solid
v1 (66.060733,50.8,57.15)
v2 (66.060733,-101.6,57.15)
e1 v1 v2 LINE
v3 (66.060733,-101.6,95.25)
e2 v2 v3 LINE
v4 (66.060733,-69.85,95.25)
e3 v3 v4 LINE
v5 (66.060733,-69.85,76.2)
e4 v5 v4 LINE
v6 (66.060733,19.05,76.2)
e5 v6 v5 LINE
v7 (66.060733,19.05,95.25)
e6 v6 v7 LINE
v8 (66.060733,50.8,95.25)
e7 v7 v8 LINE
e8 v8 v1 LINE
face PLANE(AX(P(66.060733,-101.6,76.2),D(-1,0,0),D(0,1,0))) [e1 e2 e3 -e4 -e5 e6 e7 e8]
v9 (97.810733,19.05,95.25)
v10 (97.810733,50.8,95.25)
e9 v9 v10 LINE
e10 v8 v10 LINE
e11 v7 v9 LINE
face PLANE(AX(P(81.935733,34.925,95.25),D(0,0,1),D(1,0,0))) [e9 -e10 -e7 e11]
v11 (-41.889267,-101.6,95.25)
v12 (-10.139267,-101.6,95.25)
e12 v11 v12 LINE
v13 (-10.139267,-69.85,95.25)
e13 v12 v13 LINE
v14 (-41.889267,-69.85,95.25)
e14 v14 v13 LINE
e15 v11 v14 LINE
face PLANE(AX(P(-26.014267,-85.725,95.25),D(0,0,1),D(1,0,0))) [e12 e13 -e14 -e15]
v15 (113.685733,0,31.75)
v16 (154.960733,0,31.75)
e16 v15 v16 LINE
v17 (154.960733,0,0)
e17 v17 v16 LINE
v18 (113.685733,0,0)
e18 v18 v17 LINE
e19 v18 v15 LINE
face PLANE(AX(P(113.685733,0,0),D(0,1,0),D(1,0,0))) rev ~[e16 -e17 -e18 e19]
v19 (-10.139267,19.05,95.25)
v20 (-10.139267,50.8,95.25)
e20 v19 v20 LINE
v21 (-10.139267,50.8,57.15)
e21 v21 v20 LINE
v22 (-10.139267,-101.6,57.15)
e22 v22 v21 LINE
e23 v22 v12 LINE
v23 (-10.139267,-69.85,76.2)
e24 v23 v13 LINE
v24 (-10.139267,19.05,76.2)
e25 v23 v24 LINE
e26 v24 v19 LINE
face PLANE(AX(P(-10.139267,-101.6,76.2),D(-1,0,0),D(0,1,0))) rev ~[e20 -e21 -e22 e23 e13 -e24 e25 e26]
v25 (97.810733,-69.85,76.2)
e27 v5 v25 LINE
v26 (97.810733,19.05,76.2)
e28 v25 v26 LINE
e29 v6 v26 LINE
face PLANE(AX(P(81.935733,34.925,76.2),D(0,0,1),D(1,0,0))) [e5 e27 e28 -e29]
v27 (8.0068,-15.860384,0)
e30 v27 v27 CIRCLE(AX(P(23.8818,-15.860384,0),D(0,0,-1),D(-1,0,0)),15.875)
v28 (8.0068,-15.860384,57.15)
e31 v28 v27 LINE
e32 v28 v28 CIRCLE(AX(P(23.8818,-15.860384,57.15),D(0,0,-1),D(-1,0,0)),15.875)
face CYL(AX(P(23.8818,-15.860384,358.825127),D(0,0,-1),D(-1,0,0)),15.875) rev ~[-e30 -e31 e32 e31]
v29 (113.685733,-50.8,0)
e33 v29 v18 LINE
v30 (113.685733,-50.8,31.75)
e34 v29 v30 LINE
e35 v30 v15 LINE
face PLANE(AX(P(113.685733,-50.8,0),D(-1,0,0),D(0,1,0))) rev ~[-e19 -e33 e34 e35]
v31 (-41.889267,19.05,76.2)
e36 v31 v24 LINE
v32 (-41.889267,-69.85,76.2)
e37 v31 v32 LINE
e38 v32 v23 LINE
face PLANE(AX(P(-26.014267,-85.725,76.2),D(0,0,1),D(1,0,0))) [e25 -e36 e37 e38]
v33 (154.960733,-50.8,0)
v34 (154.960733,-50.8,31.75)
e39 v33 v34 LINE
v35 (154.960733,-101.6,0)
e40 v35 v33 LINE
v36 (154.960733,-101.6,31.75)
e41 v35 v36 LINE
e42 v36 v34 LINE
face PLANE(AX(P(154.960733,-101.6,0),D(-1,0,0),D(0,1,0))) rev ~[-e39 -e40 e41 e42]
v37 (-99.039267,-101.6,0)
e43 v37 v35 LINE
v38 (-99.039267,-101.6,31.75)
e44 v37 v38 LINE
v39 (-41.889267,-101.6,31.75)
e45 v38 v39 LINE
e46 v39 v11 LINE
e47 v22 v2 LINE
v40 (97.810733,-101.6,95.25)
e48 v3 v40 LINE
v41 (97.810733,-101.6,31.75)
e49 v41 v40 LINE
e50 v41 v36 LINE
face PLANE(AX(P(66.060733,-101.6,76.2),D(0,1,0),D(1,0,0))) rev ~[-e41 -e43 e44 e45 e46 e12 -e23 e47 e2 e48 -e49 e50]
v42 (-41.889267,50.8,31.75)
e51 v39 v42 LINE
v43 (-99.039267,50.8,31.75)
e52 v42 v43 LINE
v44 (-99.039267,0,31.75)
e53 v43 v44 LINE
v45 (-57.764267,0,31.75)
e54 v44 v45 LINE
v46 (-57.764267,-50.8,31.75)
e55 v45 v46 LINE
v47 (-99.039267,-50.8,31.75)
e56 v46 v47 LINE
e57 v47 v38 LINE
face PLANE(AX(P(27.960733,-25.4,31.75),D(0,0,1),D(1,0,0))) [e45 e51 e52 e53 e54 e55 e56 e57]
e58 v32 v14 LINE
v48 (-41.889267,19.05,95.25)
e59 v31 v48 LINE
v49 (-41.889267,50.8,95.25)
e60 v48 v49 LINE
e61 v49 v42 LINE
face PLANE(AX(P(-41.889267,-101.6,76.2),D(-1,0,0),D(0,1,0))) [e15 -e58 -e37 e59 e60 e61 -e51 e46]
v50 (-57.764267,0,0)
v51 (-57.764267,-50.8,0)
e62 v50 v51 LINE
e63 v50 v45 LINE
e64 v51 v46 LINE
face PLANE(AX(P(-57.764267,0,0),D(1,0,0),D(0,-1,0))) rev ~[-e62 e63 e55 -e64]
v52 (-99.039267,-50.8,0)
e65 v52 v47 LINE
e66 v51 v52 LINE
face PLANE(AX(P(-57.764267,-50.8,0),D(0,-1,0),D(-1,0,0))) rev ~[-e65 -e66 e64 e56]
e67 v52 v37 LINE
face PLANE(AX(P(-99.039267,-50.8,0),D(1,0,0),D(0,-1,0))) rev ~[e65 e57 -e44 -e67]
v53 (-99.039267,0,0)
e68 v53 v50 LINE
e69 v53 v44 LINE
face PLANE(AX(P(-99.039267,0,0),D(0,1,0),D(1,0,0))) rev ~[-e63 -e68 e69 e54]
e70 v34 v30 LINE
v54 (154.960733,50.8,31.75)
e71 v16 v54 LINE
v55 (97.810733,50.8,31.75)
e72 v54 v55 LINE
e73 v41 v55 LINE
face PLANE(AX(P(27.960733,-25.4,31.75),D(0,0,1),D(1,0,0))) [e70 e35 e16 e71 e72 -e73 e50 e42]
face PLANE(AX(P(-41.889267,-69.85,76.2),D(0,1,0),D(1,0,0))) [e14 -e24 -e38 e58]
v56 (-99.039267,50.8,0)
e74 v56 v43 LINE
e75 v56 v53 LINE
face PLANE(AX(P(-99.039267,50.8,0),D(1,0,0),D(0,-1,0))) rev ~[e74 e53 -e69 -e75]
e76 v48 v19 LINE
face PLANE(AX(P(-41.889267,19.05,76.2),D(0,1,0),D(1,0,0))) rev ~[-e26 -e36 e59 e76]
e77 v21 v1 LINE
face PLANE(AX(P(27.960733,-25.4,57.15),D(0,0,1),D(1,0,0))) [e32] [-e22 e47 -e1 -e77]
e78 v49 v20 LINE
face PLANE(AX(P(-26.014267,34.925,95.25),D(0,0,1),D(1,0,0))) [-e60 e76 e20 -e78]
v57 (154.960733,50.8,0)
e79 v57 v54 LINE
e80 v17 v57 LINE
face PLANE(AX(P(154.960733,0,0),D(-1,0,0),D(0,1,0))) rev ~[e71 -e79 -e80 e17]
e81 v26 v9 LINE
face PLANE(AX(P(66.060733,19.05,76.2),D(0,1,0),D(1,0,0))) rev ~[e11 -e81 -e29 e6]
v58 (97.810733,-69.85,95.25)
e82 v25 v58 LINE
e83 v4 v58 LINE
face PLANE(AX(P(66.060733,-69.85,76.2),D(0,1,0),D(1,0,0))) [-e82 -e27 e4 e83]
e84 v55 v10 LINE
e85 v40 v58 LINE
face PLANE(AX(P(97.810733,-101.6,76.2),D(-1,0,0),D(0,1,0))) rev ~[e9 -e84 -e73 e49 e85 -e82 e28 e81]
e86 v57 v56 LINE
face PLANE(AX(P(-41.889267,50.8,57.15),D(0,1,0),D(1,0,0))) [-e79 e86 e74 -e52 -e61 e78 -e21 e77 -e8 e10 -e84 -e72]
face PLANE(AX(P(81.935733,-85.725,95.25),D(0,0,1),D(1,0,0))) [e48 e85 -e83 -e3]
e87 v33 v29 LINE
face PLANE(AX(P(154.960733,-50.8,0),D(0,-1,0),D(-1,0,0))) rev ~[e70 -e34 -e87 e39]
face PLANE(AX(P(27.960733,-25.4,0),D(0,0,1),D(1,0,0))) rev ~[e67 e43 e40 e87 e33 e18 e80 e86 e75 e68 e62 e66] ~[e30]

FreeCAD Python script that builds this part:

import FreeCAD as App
import Part
import Sketcher
from FreeCAD import Vector
Q = App.Units.Quantity

doc = App.newDocument("Part")
body = doc.addObject("PartDesign::Body", "Body")

# Sketch on XY plane
sketch1 = body.newObject("Sketcher::SketchObject", "Sketch")
sketch1.AttachmentSupport = (doc.getObject("XY_Plane"), [""])
sketch1.MapMode = "FlatFace"
sketch1.addGeometry(Part.LineSegment(Vector(155, 51, 0), Vector(-99, 51, 0)), False)
sketch1.addGeometry(Part.LineSegment(Vector(-99, 51, 0), Vector(-99, 0, 0)), False)
sketch1.addGeometry(Part.LineSegment(Vector(-99, 0, 0), Vector(-58, 0, 0)), False)
sketch1.addGeometry(Part.LineSegment(Vector(-58, 0, 0), Vector(-58, -51, 0)), False)
sketch1.addGeometry(Part.LineSegment(Vector(-58, -51, 0), Vector(-99, -51, 0)), False)
sketch1.addGeometry(Part.LineSegment(Vector(-99, -51, 0), Vector(-99, -102, 0)), False)
sketch1.addGeometry(Part.LineSegment(Vector(-99, -102, 0), Vector(155, -102, 0)), False)
sketch1.addGeometry(Part.LineSegment(Vector(155, -102, 0), Vector(155, -51, 0)), False)
sketch1.addGeometry(Part.LineSegment(Vector(155, -51, 0), Vector(114, -51, 0)), False)
sketch1.addGeometry(Part.LineSegment(Vector(114, -51, 0), Vector(114, 0, 0)), False)
sketch1.addGeometry(Part.LineSegment(Vector(114, 0, 0), Vector(155, 0, 0)), False)
sketch1.addGeometry(Part.LineSegment(Vector(155, 0, 0), Vector(155, 51, 0)), False)
sketch1.addConstraint(Sketcher.Constraint("Coincident", 0, 2, 1, 1))
sketch1.addConstraint(Sketcher.Constraint("Coincident", 1, 2, 2, 1))
sketch1.addConstraint(Sketcher.Constraint("Coincident", 2, 2, 3, 1))
sketch1.addConstraint(Sketcher.Constraint("Coincident", 3, 2, 4, 1))
sketch1.addConstraint(Sketcher.Constraint("Coincident", 4, 2, 5, 1))
sketch1.addConstraint(Sketcher.Constraint("Coincident", 5, 2, 6, 1))
sketch1.addConstraint(Sketcher.Constraint("Coincident", 6, 2, 7, 1))
sketch1.addConstraint(Sketcher.Constraint("Coincident", 7, 2, 8, 1))
sketch1.addConstraint(Sketcher.Constraint("Coincident", 8, 2, 9, 1))
sketch1.addConstraint(Sketcher.Constraint("Coincident", 9, 2, 10, 1))
sketch1.addConstraint(Sketcher.Constraint("Coincident", 10, 2, 11, 1))
sketch1.addConstraint(Sketcher.Constraint("Coincident", 11, 2, 0, 1))
sketch1.addConstraint(Sketcher.Constraint("Horizontal", 0))
sketch1.addConstraint(Sketcher.Constraint("Vertical", 1))
sketch1.addConstraint(Sketcher.Constraint("Horizontal", 2))
sketch1.addConstraint(Sketcher.Constraint("Vertical", 3))
sketch1.addConstraint(Sketcher.Constraint("Horizontal", 4))
sketch1.addConstraint(Sketcher.Constraint("Vertical", 5))
sketch1.addConstraint(Sketcher.Constraint("Horizontal", 6))
sketch1.addConstraint(Sketcher.Constraint("Vertical", 7))
sketch1.addConstraint(Sketcher.Constraint("Horizontal", 8))
sketch1.addConstraint(Sketcher.Constraint("Vertical", 9))
sketch1.addConstraint(Sketcher.Constraint("Horizontal", 10))
sketch1.addConstraint(Sketcher.Constraint("Vertical", 11))
sketch1.addConstraint(Sketcher.Constraint("Symmetric", 0, 2, 4, 2, -1))
sketch1.addConstraint(Sketcher.Constraint("Symmetric", 7, 2, 11, 2, -1))
sketch1.addConstraint(Sketcher.Constraint("PointOnObject", 1, 2, -1))
sketch1.addConstraint(Sketcher.Constraint("PointOnObject", 9, 2, -1))
sketch1.addConstraint(Sketcher.Constraint("Equal", 4, 8))
sketch1.addConstraint(Sketcher.Constraint("Equal", 3, 5))
sketch1.addConstraint(Sketcher.Constraint("DistanceX", 0, 2, 0, 1, Q("10 in")))
sketch1.addConstraint(Sketcher.Constraint("DistanceY", 1, 2, 1, 1, Q("2 in")))
sketch1.addConstraint(Sketcher.Constraint("DistanceX", 2, 1, 2, 2, Q("1.625 in")))
sketch1.addConstraint(Sketcher.Constraint("DistanceX", 0, 2, -1, 1, Q("99.039267 mm")))
pad1 = body.newObject("PartDesign::Pad", "Pad")
pad1.Profile = sketch1
pad1.Length = Q("1.25 in")

# Sketch on XY plane
sketch2 = body.newObject("Sketcher::SketchObject", "Sketch001")
sketch2.AttachmentSupport = (doc.getObject("XY_Plane"), [""])
sketch2.MapMode = "FlatFace"
sketch2.AttachmentOffset = App.Placement(Vector(0, 0, 1.25 * 25.4), App.Rotation())
sketch2.addGeometry(Part.LineSegment(Vector(-42, 51, 0), Vector(-42, -102, 0)), False)
sketch2.addGeometry(Part.LineSegment(Vector(-42, -102, 0), Vector(98, -102, 0)), False)
sketch2.addGeometry(Part.LineSegment(Vector(98, -102, 0), Vector(98, 51, 0)), False)
sketch2.addGeometry(Part.LineSegment(Vector(98, 51, 0), Vector(-42, 51, 0)), False)
sketch2.addConstraint(Sketcher.Constraint("Coincident", 0, 2, 1, 1))
sketch2.addConstraint(Sketcher.Constraint("Coincident", 1, 2, 2, 1))
sketch2.addConstraint(Sketcher.Constraint("Coincident", 2, 2, 3, 1))
sketch2.addConstraint(Sketcher.Constraint("Coincident", 3, 2, 0, 1))
sketch2.addConstraint(Sketcher.Constraint("Vertical", 0))
sketch2.addConstraint(Sketcher.Constraint("Horizontal", 1))
sketch2.addConstraint(Sketcher.Constraint("Vertical", 2))
sketch2.addConstraint(Sketcher.Constraint("Horizontal", 3))
sketch2.addConstraint(Sketcher.Constraint("DistanceY", 0, 2, 0, 1, Q("6 in")))
sketch2.addConstraint(Sketcher.Constraint("DistanceX", 1, 1, 1, 2, Q("5.5 in")))
sketch2.addConstraint(Sketcher.Constraint("DistanceY", 0, 2, -1, 1, Q("4 in")))
sketch2.addConstraint(Sketcher.Constraint("DistanceX", 0, 2, -1, 1, Q("41.889267 mm")))
pad2 = body.newObject("PartDesign::Pad", "Pad001")
pad2.Profile = sketch2
pad2.Length = Q("1 in")

# Sketch on XY plane
sketch3 = body.newObject("Sketcher::SketchObject", "Sketch002")
sketch3.AttachmentSupport = (doc.getObject("XY_Plane"), [""])
sketch3.MapMode = "FlatFace"
sketch3.AttachmentOffset = App.Placement(Vector(0, 0, 2.25 * 25.4), App.Rotation())
sketch3.addGeometry(Part.Circle(Vector(24, -16, 0), Vector(0, 0, 1), 16), False)
sketch3.addConstraint(Sketcher.Constraint("Diameter", 0, Q("1.25 in")))
sketch3.addConstraint(Sketcher.Constraint("DistanceX", -1, 1, 0, 3, Q("23.8818 mm")))
sketch3.addConstraint(Sketcher.Constraint("DistanceY", 0, 3, -1, 1, Q("15.860384 mm")))
doc.recompute()
hole = body.newObject("PartDesign::Hole", "Hole")
hole.Profile = sketch3
hole.ThreadType = "None"
hole.Diameter = Q("1.25 in")
hole.DepthType = "ThroughAll"

# Sketch on XY plane
sketch4 = body.newObject("Sketcher::SketchObject", "Sketch003")
sketch4.AttachmentSupport = (doc.getObject("XY_Plane"), [""])
sketch4.MapMode = "FlatFace"
sketch4.AttachmentOffset = App.Placement(Vector(0, 0, 2.25 * 25.4), App.Rotation())
sketch4.addGeometry(Part.LineSegment(Vector(-42, -102, 0), Vector(-10, -102, 0)), False)
sketch4.addGeometry(Part.LineSegment(Vector(-10, -102, 0), Vector(-10, 51, 0)), False)
sketch4.addGeometry(Part.LineSegment(Vector(-10, 51, 0), Vector(-42, 51, 0)), False)
sketch4.addGeometry(Part.LineSegment(Vector(-42, 51, 0), Vector(-42, -102, 0)), False)
sketch4.addGeometry(Part.LineSegment(Vector(66, 51, 0), Vector(66, -102, 0)), False)
sketch4.addGeometry(Part.LineSegment(Vector(66, -102, 0), Vector(98, -102, 0)), False)
sketch4.addGeometry(Part.LineSegment(Vector(98, -102, 0), Vector(98, 51, 0)), False)
sketch4.addGeometry(Part.LineSegment(Vector(98, 51, 0), Vector(66, 51, 0)), False)
sketch4.addConstraint(Sketcher.Constraint("Coincident", 0, 2, 1, 1))
sketch4.addConstraint(Sketcher.Constraint("Coincident", 1, 2, 2, 1))
sketch4.addConstraint(Sketcher.Constraint("Coincident", 2, 2, 3, 1))
sketch4.addConstraint(Sketcher.Constraint("Coincident", 3, 2, 0, 1))
sketch4.addConstraint(Sketcher.Constraint("Coincident", 4, 2, 5, 1))
sketch4.addConstraint(Sketcher.Constraint("Coincident", 5, 2, 6, 1))
sketch4.addConstraint(Sketcher.Constraint("Coincident", 6, 2, 7, 1))
sketch4.addConstraint(Sketcher.Constraint("Coincident", 7, 2, 4, 1))
sketch4.addConstraint(Sketcher.Constraint("Horizontal", 0))
sketch4.addConstraint(Sketcher.Constraint("Vertical", 1))
sketch4.addConstraint(Sketcher.Constraint("Horizontal", 2))
sketch4.addConstraint(Sketcher.Constraint("Vertical", 3))
sketch4.addConstraint(Sketcher.Constraint("Vertical", 4))
sketch4.addConstraint(Sketcher.Constraint("Horizontal", 5))
sketch4.addConstraint(Sketcher.Constraint("Vertical", 6))
sketch4.addConstraint(Sketcher.Constraint("Horizontal", 7))
sketch4.addConstraint(Sketcher.Constraint("Horizontal", 3, 2, 4, 2))
sketch4.addConstraint(Sketcher.Constraint("Horizontal", 2, 2, 6, 2))
sketch4.addConstraint(Sketcher.Constraint("Equal", 2, 5))
sketch4.addConstraint(Sketcher.Constraint("DistanceY", 1, 1, 1, 2, Q("6 in")))
sketch4.addConstraint(Sketcher.Constraint("DistanceY", 0, 2, -1, 1, Q("4 in")))
sketch4.addConstraint(Sketcher.Constraint("DistanceX", 0, 2, 4, 2, Q("3 in")))
sketch4.addConstraint(Sketcher.Constraint("DistanceX", 0, 1, 0, 2, Q("1.25 in")))
sketch4.addConstraint(Sketcher.Constraint("DistanceX", 0, 2, -1, 1, Q("10.139267 mm")))
pad3 = body.newObject("PartDesign::Pad", "Pad002")
pad3.Profile = sketch4
pad3.Length = Q("0.75 in")

# Sketch on XY plane
sketch5 = body.newObject("Sketcher::SketchObject", "Sketch004")
sketch5.AttachmentSupport = (doc.getObject("XY_Plane"), [""])
sketch5.MapMode = "FlatFace"
sketch5.AttachmentOffset = App.Placement(Vector(0, 0, 3 * 25.4), App.Rotation())
sketch5.addGeometry(Part.LineSegment(Vector(-42, -70, 0), Vector(-42, -102, 0)), False)
sketch5.addGeometry(Part.LineSegment(Vector(-42, -102, 0), Vector(-10, -102, 0)), False)
sketch5.addGeometry(Part.LineSegment(Vector(-10, -102, 0), Vector(-10, -70, 0)), False)
sketch5.addGeometry(Part.LineSegment(Vector(-10, -70, 0), Vector(-42, -70, 0)), False)
sketch5.addGeometry(Part.LineSegment(Vector(-42, 51, 0), Vector(-42, 19, 0)), False)
sketch5.addGeometry(Part.LineSegment(Vector(-42, 19, 0), Vector(-10, 19, 0)), False)
sketch5.addGeometry(Part.LineSegment(Vector(-10, 19, 0), Vector(-10, 51, 0)), False)
sketch5.addGeometry(Part.LineSegment(Vector(-10, 51, 0), Vector(-42, 51, 0)), False)
sketch5.addConstraint(Sketcher.Constraint("Coincident", 0, 2, 1, 1))
sketch5.addConstraint(Sketcher.Constraint("Coincident", 1, 2, 2, 1))
sketch5.addConstraint(Sketcher.Constraint("Coincident", 2, 2, 3, 1))
sketch5.addConstraint(Sketcher.Constraint("Coincident", 3, 2, 0, 1))
sketch5.addConstraint(Sketcher.Constraint("Coincident", 4, 2, 5, 1))
sketch5.addConstraint(Sketcher.Constraint("Coincident", 5, 2, 6, 1))
sketch5.addConstraint(Sketcher.Constraint("Coincident", 6, 2, 7, 1))
sketch5.addConstraint(Sketcher.Constraint("Coincident", 7, 2, 4, 1))
sketch5.addConstraint(Sketcher.Constraint("Vertical", 0))
sketch5.addConstraint(Sketcher.Constraint("Horizontal", 1))
sketch5.addConstraint(Sketcher.Constraint("Vertical", 2))
sketch5.addConstraint(Sketcher.Constraint("Horizontal", 3))
sketch5.addConstraint(Sketcher.Constraint("Vertical", 4))
sketch5.addConstraint(Sketcher.Constraint("Horizontal", 5))
sketch5.addConstraint(Sketcher.Constraint("Vertical", 6))
sketch5.addConstraint(Sketcher.Constraint("Horizontal", 7))
sketch5.addConstraint(Sketcher.Constraint("Vertical", 3, 2, 4, 2))
sketch5.addConstraint(Sketcher.Constraint("Vertical", 2, 2, 5, 2))
sketch5.addConstraint(Sketcher.Constraint("Equal", 7, 0))
sketch5.addConstraint(Sketcher.Constraint("Equal", 2, 4))
sketch5.addConstraint(Sketcher.Constraint("DistanceY", 0, 2, -1, 1, Q("4 in")))
sketch5.addConstraint(Sketcher.Constraint("DistanceY", -1, 1, 6, 2, Q("2 in")))
sketch5.addConstraint(Sketcher.Constraint("DistanceX", 1, 1, 1, 2, Q("1.25 in")))
sketch5.addConstraint(Sketcher.Constraint("DistanceX", 0, 2, -1, 1, Q("41.889267 mm")))
pad4 = body.newObject("PartDesign::Pad", "Pad003")
pad4.Profile = sketch5
pad4.Length = Q("0.75 in")

# Sketch on XY plane
sketch6 = body.newObject("Sketcher::SketchObject", "Sketch005")
sketch6.AttachmentSupport = (doc.getObject("XY_Plane"), [""])
sketch6.MapMode = "FlatFace"
sketch6.AttachmentOffset = App.Placement(Vector(0, 0, 3 * 25.4), App.Rotation())
sketch6.addGeometry(Part.LineSegment(Vector(66, -70, 0), Vector(66, -102, 0)), False)
sketch6.addGeometry(Part.LineSegment(Vector(66, -102, 0), Vector(98, -102, 0)), False)
sketch6.addGeometry(Part.LineSegment(Vector(98, -102, 0), Vector(98, -70, 0)), False)
sketch6.addGeometry(Part.LineSegment(Vector(98, -70, 0), Vector(66, -70, 0)), False)
sketch6.addGeometry(Part.LineSegment(Vector(66, 51, 0), Vector(66, 19, 0)), False)
sketch6.addGeometry(Part.LineSegment(Vector(66, 19, 0), Vector(98, 19, 0)), False)
sketch6.addGeometry(Part.LineSegment(Vector(98, 19, 0), Vector(98, 51, 0)), False)
sketch6.addGeometry(Part.LineSegment(Vector(98, 51, 0), Vector(66, 51, 0)), False)
sketch6.addConstraint(Sketcher.Constraint("Coincident", 0, 2, 1, 1))
sketch6.addConstraint(Sketcher.Constraint("Coincident", 1, 2, 2, 1))
sketch6.addConstraint(Sketcher.Constraint("Coincident", 2, 2, 3, 1))
sketch6.addConstraint(Sketcher.Constraint("Coincident", 3, 2, 0, 1))
sketch6.addConstraint(Sketcher.Constraint("Coincident", 4, 2, 5, 1))
sketch6.addConstraint(Sketcher.Constraint("Coincident", 5, 2, 6, 1))
sketch6.addConstraint(Sketcher.Constraint("Coincident", 6, 2, 7, 1))
sketch6.addConstraint(Sketcher.Constraint("Coincident", 7, 2, 4, 1))
sketch6.addConstraint(Sketcher.Constraint("Vertical", 0))
sketch6.addConstraint(Sketcher.Constraint("Horizontal", 1))
sketch6.addConstraint(Sketcher.Constraint("Vertical", 2))
sketch6.addConstraint(Sketcher.Constraint("Horizontal", 3))
sketch6.addConstraint(Sketcher.Constraint("Vertical", 4))
sketch6.addConstraint(Sketcher.Constraint("Horizontal", 5))
sketch6.addConstraint(Sketcher.Constraint("Vertical", 6))
sketch6.addConstraint(Sketcher.Constraint("Horizontal", 7))
sketch6.addConstraint(Sketcher.Constraint("Vertical", 3, 2, 4, 2))
sketch6.addConstraint(Sketcher.Constraint("Vertical", 2, 2, 5, 2))
sketch6.addConstraint(Sketcher.Constraint("Equal", 7, 0))
sketch6.addConstraint(Sketcher.Constraint("Equal", 2, 4))
sketch6.addConstraint(Sketcher.Constraint("DistanceY", 0, 2, -1, 1, Q("4 in")))
sketch6.addConstraint(Sketcher.Constraint("DistanceY", -1, 1, 6, 2, Q("2 in")))
sketch6.addConstraint(Sketcher.Constraint("DistanceX", 1, 1, 1, 2, Q("1.25 in")))
sketch6.addConstraint(Sketcher.Constraint("DistanceX", -1, 1, 0, 2, Q("66.060733 mm")))
pad5 = body.newObject("PartDesign::Pad", "Pad004")
pad5.Profile = sketch6
pad5.Length = Q("0.75 in")

doc.recompute()
